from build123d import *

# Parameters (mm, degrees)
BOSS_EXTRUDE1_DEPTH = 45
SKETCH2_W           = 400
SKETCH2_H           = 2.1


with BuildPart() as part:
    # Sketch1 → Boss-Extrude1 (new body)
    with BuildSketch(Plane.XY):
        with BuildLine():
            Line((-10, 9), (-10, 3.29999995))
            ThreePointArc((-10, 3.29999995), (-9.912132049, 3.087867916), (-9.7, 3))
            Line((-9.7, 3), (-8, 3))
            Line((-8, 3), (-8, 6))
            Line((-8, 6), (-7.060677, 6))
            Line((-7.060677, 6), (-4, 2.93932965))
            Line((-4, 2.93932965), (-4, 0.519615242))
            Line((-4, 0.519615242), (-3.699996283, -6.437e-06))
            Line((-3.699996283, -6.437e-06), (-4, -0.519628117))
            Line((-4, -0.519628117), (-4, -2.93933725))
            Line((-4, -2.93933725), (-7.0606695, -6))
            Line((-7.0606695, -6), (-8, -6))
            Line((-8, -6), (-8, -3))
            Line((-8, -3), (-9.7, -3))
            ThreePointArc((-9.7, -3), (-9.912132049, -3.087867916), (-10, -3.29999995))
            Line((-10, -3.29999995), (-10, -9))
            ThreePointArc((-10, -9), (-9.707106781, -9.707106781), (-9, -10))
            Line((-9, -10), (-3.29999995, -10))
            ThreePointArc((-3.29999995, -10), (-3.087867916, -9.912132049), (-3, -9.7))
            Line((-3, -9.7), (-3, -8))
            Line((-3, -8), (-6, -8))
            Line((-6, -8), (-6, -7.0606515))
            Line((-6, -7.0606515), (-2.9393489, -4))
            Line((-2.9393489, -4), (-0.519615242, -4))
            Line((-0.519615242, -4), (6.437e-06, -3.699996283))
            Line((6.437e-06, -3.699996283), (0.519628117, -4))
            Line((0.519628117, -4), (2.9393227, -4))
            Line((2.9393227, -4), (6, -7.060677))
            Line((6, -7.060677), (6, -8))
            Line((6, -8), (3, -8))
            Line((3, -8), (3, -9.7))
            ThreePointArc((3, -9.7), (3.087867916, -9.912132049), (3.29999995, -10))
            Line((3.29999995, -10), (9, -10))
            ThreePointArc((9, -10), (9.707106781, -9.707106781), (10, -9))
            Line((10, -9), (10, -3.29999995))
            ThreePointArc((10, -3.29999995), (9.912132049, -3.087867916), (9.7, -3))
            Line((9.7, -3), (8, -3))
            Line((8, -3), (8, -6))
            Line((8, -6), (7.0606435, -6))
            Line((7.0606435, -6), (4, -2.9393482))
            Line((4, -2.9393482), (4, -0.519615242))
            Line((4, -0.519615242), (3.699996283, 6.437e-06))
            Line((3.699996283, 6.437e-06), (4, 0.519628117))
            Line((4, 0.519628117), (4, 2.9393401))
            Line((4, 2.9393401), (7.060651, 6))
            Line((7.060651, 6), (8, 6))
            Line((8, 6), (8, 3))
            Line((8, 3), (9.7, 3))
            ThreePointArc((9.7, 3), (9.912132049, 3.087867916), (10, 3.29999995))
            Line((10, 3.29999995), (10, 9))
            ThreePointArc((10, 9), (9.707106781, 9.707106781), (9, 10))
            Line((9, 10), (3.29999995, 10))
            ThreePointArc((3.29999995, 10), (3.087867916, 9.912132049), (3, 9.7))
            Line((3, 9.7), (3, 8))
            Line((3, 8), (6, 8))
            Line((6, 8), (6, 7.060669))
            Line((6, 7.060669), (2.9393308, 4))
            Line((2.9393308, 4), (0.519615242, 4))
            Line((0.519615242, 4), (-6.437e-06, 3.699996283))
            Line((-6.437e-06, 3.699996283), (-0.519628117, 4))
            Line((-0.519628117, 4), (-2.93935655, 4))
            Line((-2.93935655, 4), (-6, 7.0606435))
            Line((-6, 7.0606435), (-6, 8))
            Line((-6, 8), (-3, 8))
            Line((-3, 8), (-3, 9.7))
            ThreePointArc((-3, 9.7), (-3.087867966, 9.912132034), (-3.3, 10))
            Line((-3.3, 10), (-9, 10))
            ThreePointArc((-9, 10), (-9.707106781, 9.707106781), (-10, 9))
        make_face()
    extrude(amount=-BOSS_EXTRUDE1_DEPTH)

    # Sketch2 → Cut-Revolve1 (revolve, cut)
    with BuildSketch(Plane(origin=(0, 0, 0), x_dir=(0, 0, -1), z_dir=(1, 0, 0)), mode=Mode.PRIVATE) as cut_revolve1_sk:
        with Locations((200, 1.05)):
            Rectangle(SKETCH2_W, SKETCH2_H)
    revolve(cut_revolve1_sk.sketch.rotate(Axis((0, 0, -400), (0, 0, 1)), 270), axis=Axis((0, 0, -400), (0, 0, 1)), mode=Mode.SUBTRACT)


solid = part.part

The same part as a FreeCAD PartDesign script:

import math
import FreeCAD as App
import Part
import Sketcher
from FreeCAD import Vector
Q = App.Units.Quantity


def add_polygon(sketch, points):
    """Adds a closed chain of lines whose ends are joined by coincident constraints."""
    first, n = sketch.GeometryCount, len(points)
    for a, b in zip(points, points[1:] + points[:1]):
        sketch.addGeometry(Part.LineSegment(App.Vector(*a, 0), App.Vector(*b, 0)), False)
    for i in range(n):
        sketch.addConstraint(Sketcher.Constraint("Coincident", first + i, 2, first + (i + 1) % n, 1))

doc = App.newDocument("Part")
body = doc.addObject("PartDesign::Body", "Body")

# Sketch on XY plane
sketch1 = body.newObject("Sketcher::SketchObject", "Sketch")
sketch1.AttachmentSupport = (doc.getObject("XY_Plane"), [""])
sketch1.MapMode = "FlatFace"
sketch1.addGeometry([
    Part.LineSegment(Vector(-10, 9, 0), Vector(-10, 3.3, 0)),  # 0
    Part.ArcOfCircle(Part.Circle(Vector(-9.7, 3.3, 0), Vector(0, 0, 1), 0.3), math.radians(180), math.radians(270)),  # 1
    Part.LineSegment(Vector(-9.7, 3, 0), Vector(-8, 3, 0)),  # 2
    Part.LineSegment(Vector(-8, 3, 0), Vector(-8, 6, 0)),  # 3
    Part.LineSegment(Vector(-8, 6, 0), Vector(-7.06, 6, 0)),  # 4
    Part.LineSegment(Vector(-7.06, 6, 0), Vector(-4, 2.94, 0)),  # 5
    Part.LineSegment(Vector(-4, 2.94, 0), Vector(-4, 0.52, 0)),  # 6
    Part.LineSegment(Vector(-4, 0.52, 0), Vector(-3.7, 0, 0)),  # 7
    Part.LineSegment(Vector(-3.7, 0, 0), Vector(-4, -0.52, 0)),  # 8
    Part.LineSegment(Vector(-4, -0.52, 0), Vector(-4, -2.94, 0)),  # 9
    Part.LineSegment(Vector(-4, -2.94, 0), Vector(-7.06, -6, 0)),  # 10
    Part.LineSegment(Vector(-7.06, -6, 0), Vector(-8, -6, 0)),  # 11
    Part.LineSegment(Vector(-8, -6, 0), Vector(-8, -3, 0)),  # 12
    Part.LineSegment(Vector(-8, -3, 0), Vector(-9.7, -3, 0)),  # 13
    Part.ArcOfCircle(Part.Circle(Vector(-9.7, -3.3, 0), Vector(0, 0, 1), 0.3), math.radians(90), math.radians(180)),  # 14
    Part.LineSegment(Vector(-10, -3.3, 0), Vector(-10, -9, 0)),  # 15
    Part.ArcOfCircle(Part.Circle(Vector(-9, -9, 0), Vector(0, 0, 1), 1), math.radians(-180), math.radians(-90)),  # 16
    Part.LineSegment(Vector(-9, -10, 0), Vector(-3.3, -10, 0)),  # 17
    Part.ArcOfCircle(Part.Circle(Vector(-3.3, -9.7, 0), Vector(0, 0, 1), 0.3), math.radians(-90), math.radians(0)),  # 18
    Part.LineSegment(Vector(-3, -9.7, 0), Vector(-3, -8, 0)),  # 19
    Part.LineSegment(Vector(-3, -8, 0), Vector(-6, -8, 0)),  # 20
    Part.LineSegment(Vector(-6, -8, 0), Vector(-6, -7.06, 0)),  # 21
    Part.LineSegment(Vector(-6, -7.06, 0), Vector(-2.94, -4, 0)),  # 22
    Part.LineSegment(Vector(-2.94, -4, 0), Vector(-0.52, -4, 0)),  # 23
    Part.LineSegment(Vector(-0.52, -4, 0), Vector(0, -3.7, 0)),  # 24
    Part.LineSegment(Vector(0, -3.7, 0), Vector(0.52, -4, 0)),  # 25
    Part.LineSegment(Vector(0.52, -4, 0), Vector(2.94, -4, 0)),  # 26
    Part.LineSegment(Vector(2.94, -4, 0), Vector(6, -7.06, 0)),  # 27
    Part.LineSegment(Vector(6, -7.06, 0), Vector(6, -8, 0)),  # 28
    Part.LineSegment(Vector(6, -8, 0), Vector(3, -8, 0)),  # 29
    Part.LineSegment(Vector(3, -8, 0), Vector(3, -9.7, 0)),  # 30
    Part.ArcOfCircle(Part.Circle(Vector(3.3, -9.7, 0), Vector(0, 0, 1), 0.3), math.radians(180), math.radians(270)),  # 31
    Part.LineSegment(Vector(3.3, -10, 0), Vector(9, -10, 0)),  # 32
    Part.ArcOfCircle(Part.Circle(Vector(9, -9, 0), Vector(0, 0, 1), 1), math.radians(-90), math.radians(0)),  # 33
    Part.LineSegment(Vector(10, -9, 0), Vector(10, -3.3, 0)),  # 34
    Part.ArcOfCircle(Part.Circle(Vector(9.7, -3.3, 0), Vector(0, 0, 1), 0.3), math.radians(0), math.radians(90)),  # 35
    Part.LineSegment(Vector(9.7, -3, 0), Vector(8, -3, 0)),  # 36
    Part.LineSegment(Vector(8, -3, 0), Vector(8, -6, 0)),  # 37
    Part.LineSegment(Vector(8, -6, 0), Vector(7.06, -6, 0)),  # 38
    Part.LineSegment(Vector(7.06, -6, 0), Vector(4, -2.94, 0)),  # 39
    Part.LineSegment(Vector(4, -2.94, 0), Vector(4, -0.52, 0)),  # 40
    Part.LineSegment(Vector(4, -0.52, 0), Vector(3.7, 0, 0)),  # 41
    Part.LineSegment(Vector(3.7, 0, 0), Vector(4, 0.52, 0)),  # 42
    Part.LineSegment(Vector(4, 0.52, 0), Vector(4, 2.94, 0)),  # 43
    Part.LineSegment(Vector(4, 2.94, 0), Vector(7.06, 6, 0)),  # 44
    Part.LineSegment(Vector(7.06, 6, 0), Vector(8, 6, 0)),  # 45
    Part.LineSegment(Vector(8, 6, 0), Vector(8, 3, 0)),  # 46
    Part.LineSegment(Vector(8, 3, 0), Vector(9.7, 3, 0)),  # 47
    Part.ArcOfCircle(Part.Circle(Vector(9.7, 3.3, 0), Vector(0, 0, 1), 0.3), math.radians(-90), math.radians(0)),  # 48
    Part.LineSegment(Vector(10, 3.3, 0), Vector(10, 9, 0)),  # 49
    Part.ArcOfCircle(Part.Circle(Vector(9, 9, 0), Vector(0, 0, 1), 1), math.radians(0), math.radians(90)),  # 50
    Part.LineSegment(Vector(9, 10, 0), Vector(3.3, 10, 0)),  # 51
    Part.ArcOfCircle(Part.Circle(Vector(3.3, 9.7, 0), Vector(0, 0, 1), 0.3), math.radians(90), math.radians(180)),  # 52
    Part.LineSegment(Vector(3, 9.7, 0), Vector(3, 8, 0)),  # 53
    Part.LineSegment(Vector(3, 8, 0), Vector(6, 8, 0)),  # 54
    Part.LineSegment(Vector(6, 8, 0), Vector(6, 7.06, 0)),  # 55
    Part.LineSegment(Vector(6, 7.06, 0), Vector(2.94, 4, 0)),  # 56
    Part.LineSegment(Vector(2.94, 4, 0), Vector(0.52, 4, 0)),  # 57
    Part.LineSegment(Vector(0.52, 4, 0), Vector(0, 3.7, 0)),  # 58
    Part.LineSegment(Vector(0, 3.7, 0), Vector(-0.52, 4, 0)),  # 59
    Part.LineSegment(Vector(-0.52, 4, 0), Vector(-2.94, 4, 0)),  # 60
    Part.LineSegment(Vector(-2.94, 4, 0), Vector(-6, 7.06, 0)),  # 61
    Part.LineSegment(Vector(-6, 7.06, 0), Vector(-6, 8, 0)),  # 62
    Part.LineSegment(Vector(-6, 8, 0), Vector(-3, 8, 0)),  # 63
    Part.LineSegment(Vector(-3, 8, 0), Vector(-3, 9.7, 0)),  # 64
    Part.ArcOfCircle(Part.Circle(Vector(-3.3, 9.7, 0), Vector(0, 0, 1), 0.3), math.radians(0), math.radians(90)),  # 65
    Part.LineSegment(Vector(-3.3, 10, 0), Vector(-9, 10, 0)),  # 66
    Part.ArcOfCircle(Part.Circle(Vector(-9, 9, 0), Vector(0, 0, 1), 1), math.radians(90), math.radians(180)),  # 67
], False)
sketch1.addConstraint([
    Sketcher.Constraint("Tangent", 0, 2, 1, 1),
    Sketcher.Constraint("Tangent", 1, 2, 2, 1),
    Sketcher.Constraint("Coincident", 2, 2, 3, 1),
    Sketcher.Constraint("Coincident", 3, 2, 4, 1),
    Sketcher.Constraint("Coincident", 4, 2, 5, 1),
    Sketcher.Constraint("Coincident", 5, 2, 6, 1),
    Sketcher.Constraint("Coincident", 6, 2, 7, 1),
    Sketcher.Constraint("Coincident", 7, 2, 8, 1),
    Sketcher.Constraint("Coincident", 8, 2, 9, 1),
    Sketcher.Constraint("Coincident", 9, 2, 10, 1),
    Sketcher.Constraint("Coincident", 10, 2, 11, 1),
    Sketcher.Constraint("Coincident", 11, 2, 12, 1),
    Sketcher.Constraint("Coincident", 12, 2, 13, 1),
    Sketcher.Constraint("Tangent", 13, 2, 14, 1),
    Sketcher.Constraint("Tangent", 14, 2, 15, 1),
    Sketcher.Constraint("Tangent", 15, 2, 16, 1),
    Sketcher.Constraint("Tangent", 16, 2, 17, 1),
    Sketcher.Constraint("Tangent", 17, 2, 18, 1),
    Sketcher.Constraint("Tangent", 18, 2, 19, 1),
    Sketcher.Constraint("Coincident", 19, 2, 20, 1),
    Sketcher.Constraint("Coincident", 20, 2, 21, 1),
    Sketcher.Constraint("Coincident", 21, 2, 22, 1),
    Sketcher.Constraint("Coincident", 22, 2, 23, 1),
    Sketcher.Constraint("Coincident", 23, 2, 24, 1),
    Sketcher.Constraint("Coincident", 24, 2, 25, 1),
    Sketcher.Constraint("Coincident", 25, 2, 26, 1),
    Sketcher.Constraint("Coincident", 26, 2, 27, 1),
    Sketcher.Constraint("Coincident", 27, 2, 28, 1),
    Sketcher.Constraint("Coincident", 28, 2, 29, 1),
    Sketcher.Constraint("Coincident", 29, 2, 30, 1),
    Sketcher.Constraint("Tangent", 30, 2, 31, 1),
    Sketcher.Constraint("Tangent", 31, 2, 32, 1),
    Sketcher.Constraint("Tangent", 32, 2, 33, 1),
    Sketcher.Constraint("Tangent", 33, 2, 34, 1),
    Sketcher.Constraint("Tangent", 34, 2, 35, 1),
    Sketcher.Constraint("Tangent", 35, 2, 36, 1),
    Sketcher.Constraint("Coincident", 36, 2, 37, 1),
    Sketcher.Constraint("Coincident", 37, 2, 38, 1),
    Sketcher.Constraint("Coincident", 38, 2, 39, 1),
    Sketcher.Constraint("Coincident", 39, 2, 40, 1),
    Sketcher.Constraint("Coincident", 40, 2, 41, 1),
    Sketcher.Constraint("Coincident", 41, 2, 42, 1),
    Sketcher.Constraint("Coincident", 42, 2, 43, 1),
    Sketcher.Constraint("Coincident", 43, 2, 44, 1),
    Sketcher.Constraint("Coincident", 44, 2, 45, 1),
    Sketcher.Constraint("Coincident", 45, 2, 46, 1),
    Sketcher.Constraint("Coincident", 46, 2, 47, 1),
    Sketcher.Constraint("Tangent", 47, 2, 48, 1),
    Sketcher.Constraint("Tangent", 48, 2, 49, 1),
    Sketcher.Constraint("Tangent", 49, 2, 50, 1),
    Sketcher.Constraint("Tangent", 50, 2, 51, 1),
    Sketcher.Constraint("Tangent", 51, 2, 52, 1),
    Sketcher.Constraint("Tangent", 52, 2, 53, 1),
    Sketcher.Constraint("Coincident", 53, 2, 54, 1),
    Sketcher.Constraint("Coincident", 54, 2, 55, 1),
    Sketcher.Constraint("Coincident", 55, 2, 56, 1),
    Sketcher.Constraint("Coincident", 56, 2, 57, 1),
    Sketcher.Constraint("Coincident", 57, 2, 58, 1),
    Sketcher.Constraint("Coincident", 58, 2, 59, 1),
    Sketcher.Constraint("Coincident", 59, 2, 60, 1),
    Sketcher.Constraint("Coincident", 60, 2, 61, 1),
    Sketcher.Constraint("Coincident", 61, 2, 62, 1),
    Sketcher.Constraint("Coincident", 62, 2, 63, 1),
    Sketcher.Constraint("Coincident", 63, 2, 64, 1),
    Sketcher.Constraint("Tangent", 64, 2, 65, 1),
    Sketcher.Constraint("Tangent", 65, 2, 66, 1),
    Sketcher.Constraint("Tangent", 66, 2, 67, 1),
    Sketcher.Constraint("Tangent", 67, 2, 0, 1),
    Sketcher.Constraint("Vertical", 0),
    Sketcher.Constraint("Horizontal", 2),
    Sketcher.Constraint("Vertical", 3),
    Sketcher.Constraint("Horizontal", 4),
    Sketcher.Constraint("Vertical", 6),
    Sketcher.Constraint("Vertical", 9),
    Sketcher.Constraint("Horizontal", 11),
    Sketcher.Constraint("Vertical", 12),
    Sketcher.Constraint("Horizontal", 13),
    Sketcher.Constraint("Vertical", 15),
    Sketcher.Constraint("Horizontal", 17),
    Sketcher.Constraint("Vertical", 19),
    Sketcher.Constraint("Horizontal", 20),
    Sketcher.Constraint("Vertical", 21),
    Sketcher.Constraint("Horizontal", 23),
    Sketcher.Constraint("Horizontal", 26),
    Sketcher.Constraint("Vertical", 28),
    Sketcher.Constraint("Horizontal", 29),
    Sketcher.Constraint("Vertical", 30),
    Sketcher.Constraint("Horizontal", 32),
    Sketcher.Constraint("Vertical", 34),
    Sketcher.Constraint("Horizontal", 36),
    Sketcher.Constraint("Vertical", 37),
    Sketcher.Constraint("Horizontal", 38),
    Sketcher.Constraint("Vertical", 40),
    Sketcher.Constraint("Vertical", 43),
    Sketcher.Constraint("Horizontal", 45),
    Sketcher.Constraint("Vertical", 46),
    Sketcher.Constraint("Horizontal", 47),
    Sketcher.Constraint("Vertical", 49),
    Sketcher.Constraint("Horizontal", 51),
    Sketcher.Constraint("Vertical", 53),
    Sketcher.Constraint("Horizontal", 54),
    Sketcher.Constraint("Vertical", 55),
    Sketcher.Constraint("Horizontal", 57),
    Sketcher.Constraint("Horizontal", 60),
    Sketcher.Constraint("Vertical", 62),
    Sketcher.Constraint("Horizontal", 63),
    Sketcher.Constraint("Vertical", 64),
    Sketcher.Constraint("Horizontal", 66),
    Sketcher.Constraint("Equal", 1, 14),
    Sketcher.Constraint("Equal", 14, 18),
    Sketcher.Constraint("Equal", 18, 31),
    Sketcher.Constraint("Equal", 16, 33),
    Sketcher.Constraint("Equal", 31, 35),
    Sketcher.Constraint("Equal", 35, 48),
    Sketcher.Constraint("Equal", 33, 50),
    Sketcher.Constraint("Equal", 48, 52),
    Sketcher.Constraint("Equal", 52, 65),
    Sketcher.Constraint("Equal", 50, 67),
    Sketcher.Constraint("Symmetric", 1, 3, 35, 3, -1, 1),
    Sketcher.Constraint("Symmetric", 14, 3, 48, 3, -1, 1),
    Sketcher.Constraint("Symmetric", 18, 3, 52, 3, -1, 1),
    Sketcher.Constraint("Symmetric", 31, 3, 65, 3, -1, 1),
    Sketcher.Constraint("Symmetric", 3, 2, 37, 2, -1, 1),
    Sketcher.Constraint("Symmetric", 6, 2, 40, 2, -1, 1),
    Sketcher.Constraint("Symmetric", 7, 2, 41, 2, -1, 1),
    Sketcher.Constraint("Symmetric", 8, 2, 42, 2, -1, 1),
    Sketcher.Constraint("Symmetric", 11, 2, 45, 2, -1, 1),
    Sketcher.Constraint("Symmetric", 20, 2, 54, 2, -1, 1),
    Sketcher.Constraint("Symmetric", 23, 2, 57, 2, -1, 1),
    Sketcher.Constraint("Symmetric", 24, 2, 58, 2, -1, 1),
    Sketcher.Constraint("Symmetric", 25, 2, 59, 2, -1, 1),
    Sketcher.Constraint("Symmetric", 28, 2, 62, 2, -1, 1),
    Sketcher.Constraint("Symmetric", 18, 3, 31, 3, -2),
    Sketcher.Constraint("Symmetric", 14, 3, 35, 3, -2),
    Sketcher.Constraint("Symmetric", 20, 2, 28, 2, -2),
    Sketcher.Constraint("Symmetric", 11, 2, 37, 2, -2),
    Sketcher.Constraint("Symmetric", 5, 2, 9, 2, -1),
    Sketcher.Constraint("Symmetric", 26, 2, 56, 2, -1),
    Sketcher.Constraint("Parallel", 10, 22),
    Sketcher.Constraint("Perpendicular", 7, 24),
    Sketcher.Constraint("Perpendicular", 8, 25),
    Sketcher.Constraint("Perpendicular", 22, 27),
    Sketcher.Constraint("Parallel", 27, 39),
    Sketcher.Constraint("Perpendicular", 27, 44),
    Sketcher.Constraint("Parallel", 44, 56),
    Sketcher.Constraint("Perpendicular", 56, 61),
    Sketcher.Constraint("Equal", 66, 0),
    Sketcher.Constraint("Equal", 63, 3),
    Sketcher.Constraint("Equal", 57, 6),
    Sketcher.Constraint("Equal", 47, 19),
    Sketcher.Constraint("Equal", 45, 21),
    Sketcher.Constraint("Equal", 4, 28),
    Sketcher.Constraint("Equal", 23, 40),
    Sketcher.Constraint("Equal", 11, 55),
    Sketcher.Constraint("Equal", 38, 62),
    Sketcher.Constraint("Equal", 7, 8),
    Sketcher.Constraint("Equal", 8, 24),
    Sketcher.Constraint("Radius", 16, Q("1 mm")),
    Sketcher.Constraint("Radius", 1, Q("0.3 mm")),
    Sketcher.Constraint("DistanceX", 20, 2, 20, 1, Q("3 mm")),
    Sketcher.Constraint("Angle", 7, Q("-60 deg")),
    Sketcher.Constraint("Angle", 22, Q("45.000004 deg")),
    Sketcher.Constraint("DistanceX", 2, 1, 2, 2, Q("1.7 mm")),
    Sketcher.Constraint("DistanceX", 17, 1, 17, 2, Q("5.7 mm")),
    Sketcher.Constraint("DistanceX", 16, 3, -1, 1, Q("9 mm")),
    Sketcher.Constraint("DistanceY", 16, 3, -1, 1, Q("9 mm")),
    Sketcher.Constraint("DistanceX", 5, 2, -1, 1, Q("4 mm")),
    Sketcher.Constraint("DistanceY", 22, 2, -1, 1, Q("4 mm")),
    Sketcher.Constraint("DistanceX", 11, 2, 11, 1, Q("0.93933 mm")),
    Sketcher.Constraint("DistanceX", 45, 1, 45, 2, Q("0.939349 mm")),
    Sketcher.Constraint("DistanceX", 60, 2, 60, 1, Q("2.419728 mm")),
    Sketcher.Constraint("DistanceX", 23, 1, 23, 2, Q("2.419734 mm")),
])
pad1 = body.newObject("PartDesign::Pad", "Pad")
pad1.Profile = sketch1
pad1.Length = 45
pad1.Reversed = True

# Sketch on YZ plane
sketch2 = body.newObject("Sketcher::SketchObject", "Sketch001")
sketch2.AttachmentSupport = (doc.getObject("YZ_Plane"), [""])
sketch2.MapMode = "FlatFace"
add_polygon(sketch2, [(2.1, 0), (0, 0), (0, -400), (2.1, -400)])  # lines 0-3
sketch2.addConstraint([
    Sketcher.Constraint("Horizontal", 0),
    Sketcher.Constraint("Vertical", 1),
    Sketcher.Constraint("Horizontal", 2),
    Sketcher.Constraint("Vertical", 3),
    Sketcher.Constraint("Coincident", 0, 2, -1, 1),
    Sketcher.Constraint("DistanceY", 1, 2, 1, 1, Q("400 mm")),
    Sketcher.Constraint("DistanceX", 0, 2, 0, 1, Q("2.1 mm")),
])
groove = body.newObject("PartDesign::Groove", "Groove")
groove.Profile = sketch2
groove.ReferenceAxis = (sketch2, ["V_Axis"])
groove.Angle = 360

doc.recompute()
